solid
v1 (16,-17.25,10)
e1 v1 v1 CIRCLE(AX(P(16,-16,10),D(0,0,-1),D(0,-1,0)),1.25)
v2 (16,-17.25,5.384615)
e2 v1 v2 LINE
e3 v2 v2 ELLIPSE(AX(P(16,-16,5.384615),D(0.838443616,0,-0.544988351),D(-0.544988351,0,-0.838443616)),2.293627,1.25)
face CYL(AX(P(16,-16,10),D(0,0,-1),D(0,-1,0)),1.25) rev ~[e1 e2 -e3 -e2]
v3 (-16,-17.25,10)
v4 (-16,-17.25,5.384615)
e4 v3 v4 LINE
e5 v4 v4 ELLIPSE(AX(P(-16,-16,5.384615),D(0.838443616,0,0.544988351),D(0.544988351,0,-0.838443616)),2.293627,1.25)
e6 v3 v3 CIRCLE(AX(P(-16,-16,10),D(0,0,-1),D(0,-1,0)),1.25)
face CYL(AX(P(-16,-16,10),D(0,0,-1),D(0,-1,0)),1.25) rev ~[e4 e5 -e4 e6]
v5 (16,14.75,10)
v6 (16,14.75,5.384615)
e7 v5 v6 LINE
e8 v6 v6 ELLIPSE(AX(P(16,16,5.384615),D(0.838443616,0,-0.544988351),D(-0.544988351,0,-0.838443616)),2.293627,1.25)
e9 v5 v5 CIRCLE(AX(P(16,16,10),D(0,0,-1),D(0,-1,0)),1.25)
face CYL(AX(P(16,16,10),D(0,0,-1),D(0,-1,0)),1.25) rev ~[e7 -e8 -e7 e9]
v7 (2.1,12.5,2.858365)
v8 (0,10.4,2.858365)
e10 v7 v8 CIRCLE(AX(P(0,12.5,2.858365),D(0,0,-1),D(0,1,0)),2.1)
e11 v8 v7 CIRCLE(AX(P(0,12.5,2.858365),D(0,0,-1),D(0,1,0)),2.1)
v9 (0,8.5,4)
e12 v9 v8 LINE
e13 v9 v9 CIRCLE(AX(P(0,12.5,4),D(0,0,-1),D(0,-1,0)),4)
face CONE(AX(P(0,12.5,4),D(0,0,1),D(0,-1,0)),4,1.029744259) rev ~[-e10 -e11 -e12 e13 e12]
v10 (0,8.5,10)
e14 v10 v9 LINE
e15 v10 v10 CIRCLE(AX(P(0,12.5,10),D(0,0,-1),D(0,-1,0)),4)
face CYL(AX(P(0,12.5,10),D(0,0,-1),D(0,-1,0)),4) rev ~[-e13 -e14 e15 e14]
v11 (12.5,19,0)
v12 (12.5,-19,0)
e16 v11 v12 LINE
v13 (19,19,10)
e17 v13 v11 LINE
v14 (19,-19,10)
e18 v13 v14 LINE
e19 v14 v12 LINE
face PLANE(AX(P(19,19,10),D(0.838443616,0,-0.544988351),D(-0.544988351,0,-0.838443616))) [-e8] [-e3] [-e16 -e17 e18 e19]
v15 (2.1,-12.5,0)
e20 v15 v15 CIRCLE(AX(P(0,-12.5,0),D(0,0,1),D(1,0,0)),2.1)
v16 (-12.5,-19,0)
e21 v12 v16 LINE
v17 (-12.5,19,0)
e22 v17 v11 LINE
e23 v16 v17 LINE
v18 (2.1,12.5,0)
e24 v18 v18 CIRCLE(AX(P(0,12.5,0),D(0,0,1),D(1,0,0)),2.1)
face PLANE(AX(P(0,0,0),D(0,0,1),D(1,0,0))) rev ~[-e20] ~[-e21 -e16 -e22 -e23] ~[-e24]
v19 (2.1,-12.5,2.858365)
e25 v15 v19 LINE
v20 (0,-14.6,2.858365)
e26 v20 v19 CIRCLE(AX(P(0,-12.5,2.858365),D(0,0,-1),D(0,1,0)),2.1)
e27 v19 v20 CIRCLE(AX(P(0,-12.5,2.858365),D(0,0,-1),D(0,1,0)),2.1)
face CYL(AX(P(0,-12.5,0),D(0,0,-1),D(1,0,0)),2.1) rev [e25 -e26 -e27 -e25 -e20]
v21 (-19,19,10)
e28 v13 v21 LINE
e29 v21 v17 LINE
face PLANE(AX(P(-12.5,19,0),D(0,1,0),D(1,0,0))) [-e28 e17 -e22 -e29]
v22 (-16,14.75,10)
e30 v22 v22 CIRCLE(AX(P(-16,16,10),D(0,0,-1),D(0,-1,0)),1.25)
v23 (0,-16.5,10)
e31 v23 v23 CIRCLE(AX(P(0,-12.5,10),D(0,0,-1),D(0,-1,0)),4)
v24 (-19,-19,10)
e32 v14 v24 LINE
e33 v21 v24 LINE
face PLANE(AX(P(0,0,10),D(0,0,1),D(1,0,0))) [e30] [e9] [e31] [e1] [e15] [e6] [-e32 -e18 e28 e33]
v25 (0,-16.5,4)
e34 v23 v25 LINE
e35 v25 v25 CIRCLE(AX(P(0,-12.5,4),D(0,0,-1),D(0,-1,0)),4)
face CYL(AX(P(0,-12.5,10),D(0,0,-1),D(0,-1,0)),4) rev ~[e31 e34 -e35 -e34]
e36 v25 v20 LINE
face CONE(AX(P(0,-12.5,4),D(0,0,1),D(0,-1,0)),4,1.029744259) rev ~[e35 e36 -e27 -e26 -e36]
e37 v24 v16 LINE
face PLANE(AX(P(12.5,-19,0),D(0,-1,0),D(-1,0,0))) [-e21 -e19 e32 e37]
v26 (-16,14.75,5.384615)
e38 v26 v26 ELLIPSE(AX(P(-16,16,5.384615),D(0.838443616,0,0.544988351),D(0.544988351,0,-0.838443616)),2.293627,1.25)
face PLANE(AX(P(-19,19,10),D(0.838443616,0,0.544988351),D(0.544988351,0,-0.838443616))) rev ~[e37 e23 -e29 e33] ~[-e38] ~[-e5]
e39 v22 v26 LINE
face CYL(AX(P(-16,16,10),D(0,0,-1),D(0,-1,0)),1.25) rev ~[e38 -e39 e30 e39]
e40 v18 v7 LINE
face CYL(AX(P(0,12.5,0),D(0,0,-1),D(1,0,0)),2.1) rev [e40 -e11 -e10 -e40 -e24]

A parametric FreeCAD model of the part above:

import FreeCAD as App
import Part
import Sketcher

doc = App.newDocument("Part")
params = doc.addObject("Spreadsheet::Sheet", "Params")
for row, (alias, value) in enumerate([
    ("sketch1_diameter", "4.2 mm"),
    ("sketch1_width", "25 mm"),
    ("sketch1_height", "38 mm"),
    ("pad1_length", "10 mm"),
    ("sketch2_width", "6.5 mm"),
    ("sketch2_height", "10 mm"),
    ("pad2_length", "38 mm"),
    ("sketch3_diameter", "2.5 mm"),
    ("hole_diameter", "2.5 mm"),
    ("hole_depth", "20 mm"),
    ("sketch4_diameter", "8 mm"),
    ("hole2_diameter", "8 mm"),
    ("hole2_depth", "6 mm"),
    ("sketch5_diameter", "8 mm"),
    ("hole3_diameter", "8 mm"),
    ("hole3_depth", "6 mm"),
], start=1):
    params.set(f"A{row}", alias)
    params.set(f"B{row}", "=" + value)
    params.setAlias(f"B{row}", alias)

body = doc.addObject("PartDesign::Body", "Body")

# Sketch on XY plane
sketch1 = body.newObject("Sketcher::SketchObject", "Sketch")
sketch1.AttachmentSupport = (doc.getObject("XY_Plane"), [""])
sketch1.MapMode = "FlatFace"
sketch1.addGeometry([
    Part.LineSegment(App.Vector(-12.5, -19, 0), App.Vector(12.5, -19, 0)),  # 0
    Part.LineSegment(App.Vector(12.5, -19, 0), App.Vector(12.5, 19, 0)),  # 1
    Part.LineSegment(App.Vector(12.5, 19, 0), App.Vector(-12.5, 19, 0)),  # 2
    Part.LineSegment(App.Vector(-12.5, 19, 0), App.Vector(-12.5, -19, 0)),  # 3
    Part.Circle(App.Vector(0, -12.5, 0), App.Vector(0, 0, 1), 2.1),  # 4
    Part.Circle(App.Vector(0, 12.5, 0), App.Vector(0, 0, 1), 2.1),  # 5
], False)
sketch1.addConstraint([
    Sketcher.Constraint("Coincident", 0, 2, 1, 1),
    Sketcher.Constraint("Coincident", 1, 2, 2, 1),
    Sketcher.Constraint("Coincident", 2, 2, 3, 1),
    Sketcher.Constraint("Coincident", 3, 2, 0, 1),
    Sketcher.Constraint("Horizontal", 0),
    Sketcher.Constraint("Vertical", 1),
    Sketcher.Constraint("Horizontal", 2),
    Sketcher.Constraint("Vertical", 3),
    Sketcher.Constraint("Equal", 4, 5),
    Sketcher.Constraint("Symmetric", 4, 3, 5, 3, -1, 1),
    Sketcher.Constraint("Symmetric", 0, 2, 2, 2, -1, 1),
    Sketcher.Constraint("PointOnObject", 4, 3, -2),
    Sketcher.Constraint("Diameter", 4, 4.2),
    Sketcher.Constraint("DistanceX", 0, 1, 0, 2, 25.0),
    Sketcher.Constraint("DistanceY", 1, 1, 1, 2, 38.0),
    Sketcher.Constraint("DistanceY", 4, 3, 5, 3, 25.0),
])
sketch1.setExpression("Constraints[12]", "Params.sketch1_diameter")
sketch1.setExpression("Constraints[13]", "Params.sketch1_width")
sketch1.setExpression("Constraints[14]", "Params.sketch1_height")
pad1 = body.newObject("PartDesign::Pad", "Pad")
pad1.Profile = sketch1
pad1.setExpression("Length", "Params.pad1_length")

# Sketch on XZ plane
sketch2 = body.newObject("Sketcher::SketchObject", "Sketch001")
sketch2.AttachmentSupport = (doc.getObject("XZ_Plane"), [""])
sketch2.MapMode = "FlatFace"
sketch2.AttachmentOffset = App.Placement(App.Vector(0, 0, -19), App.Rotation())
sketch2.addGeometry([
    Part.LineSegment(App.Vector(12, 0, 0), App.Vector(12, 10, 0)),  # 0
    Part.LineSegment(App.Vector(12, 10, 0), App.Vector(19, 10, 0)),  # 1
    Part.LineSegment(App.Vector(19, 10, 0), App.Vector(12, 0, 0)),  # 2
    Part.LineSegment(App.Vector(-12, 10, 0), App.Vector(-12, 0, 0)),  # 3
    Part.LineSegment(App.Vector(-12, 0, 0), App.Vector(-19, 10, 0)),  # 4
    Part.LineSegment(App.Vector(-19, 10, 0), App.Vector(-12, 10, 0)),  # 5
], False)
sketch2.addConstraint([
    Sketcher.Constraint("Coincident", 0, 2, 1, 1),
    Sketcher.Constraint("Coincident", 1, 2, 2, 1),
    Sketcher.Constraint("Coincident", 2, 2, 0, 1),
    Sketcher.Constraint("Coincident", 3, 2, 4, 1),
    Sketcher.Constraint("Coincident", 4, 2, 5, 1),
    Sketcher.Constraint("Coincident", 5, 2, 3, 1),
    Sketcher.Constraint("Vertical", 0),
    Sketcher.Constraint("Horizontal", 1),
    Sketcher.Constraint("Vertical", 3),
    Sketcher.Constraint("Horizontal", 5),
    Sketcher.Constraint("Symmetric", 2, 2, 3, 2, -1, 1),
    Sketcher.Constraint("Symmetric", 1, 2, 4, 2, -2),
    Sketcher.Constraint("PointOnObject", 2, 2, -1),
    Sketcher.Constraint("DistanceX", 1, 1, 1, 2, 6.5),
    Sketcher.Constraint("DistanceY", 0, 1, 0, 2, 10.0),
    Sketcher.Constraint("DistanceX", -1, 1, 1, 2, 19.0),
])
sketch2.setExpression("Constraints[13]", "Params.sketch2_width")
sketch2.setExpression("Constraints[14]", "Params.sketch2_height")
pad2 = body.newObject("PartDesign::Pad", "Pad001")
pad2.Profile = sketch2
pad2.setExpression("Length", "Params.pad2_length")

# Sketch on XY plane
sketch3 = body.newObject("Sketcher::SketchObject", "Sketch002")
sketch3.AttachmentSupport = (doc.getObject("XY_Plane"), [""])
sketch3.MapMode = "FlatFace"
sketch3.AttachmentOffset = App.Placement(App.Vector(0, 0, 10), App.Rotation())
sketch3.addGeometry([
    Part.Circle(App.Vector(-16, 16, 0), App.Vector(0, 0, 1), 1.2),
    Part.Circle(App.Vector(16, 16, 0), App.Vector(0, 0, 1), 1.2),
    Part.Circle(App.Vector(-16, -16, 0), App.Vector(0, 0, 1), 1.2),
    Part.Circle(App.Vector(16, -16, 0), App.Vector(0, 0, 1), 1.2),
], False)
sketch3.addConstraint([
    Sketcher.Constraint("Equal", 0, 1),
    Sketcher.Constraint("Equal", 1, 2),
    Sketcher.Constraint("Equal", 2, 3),
    Sketcher.Constraint("Symmetric", 1, 3, 2, 3, -1, 1),
    Sketcher.Constraint("Symmetric", 0, 3, 3, 3, -1, 1),
    Sketcher.Constraint("Symmetric", 0, 3, 1, 3, -2),
    Sketcher.Constraint("Diameter", 0, 2.5),
    Sketcher.Constraint("DistanceX", 0, 3, -1, 1, 16.0),
    Sketcher.Constraint("DistanceY", -1, 1, 0, 3, 16.0),
])
sketch3.setExpression("Constraints[6]", "Params.sketch3_diameter")
doc.recompute()
hole = body.newObject("PartDesign::Hole", "Hole")
hole.Profile = sketch3
hole.ThreadType = "None"
hole.setExpression("Diameter", "Params.hole_diameter")
hole.DepthType = "Dimension"
hole.setExpression("Depth", "Params.hole_depth")
hole.DrillPoint = "Angled"
hole.DrillPointAngle = 118

# Sketch on XY plane
sketch4 = body.newObject("Sketcher::SketchObject", "Sketch003")
sketch4.AttachmentSupport = (doc.getObject("XY_Plane"), [""])
sketch4.MapMode = "FlatFace"
sketch4.AttachmentOffset = App.Placement(App.Vector(0, 0, 10), App.Rotation())
sketch4.addGeometry(Part.Circle(App.Vector(0, -12.5, 0), App.Vector(0, 0, 1), 4), False)
sketch4.addConstraint([
    Sketcher.Constraint("PointOnObject", 0, 3, -2),
    Sketcher.Constraint("Diameter", 0, 8.0),
    Sketcher.Constraint("DistanceY", 0, 3, -1, 1, 12.5),
])
sketch4.setExpression("Constraints[1]", "Params.sketch4_diameter")
doc.recompute()
hole2 = body.newObject("PartDesign::Hole", "Hole001")
hole2.Profile = sketch4
hole2.ThreadType = "None"
hole2.setExpression("Diameter", "Params.hole2_diameter")
hole2.DepthType = "Dimension"
hole2.setExpression("Depth", "Params.hole2_depth")
hole2.DrillPoint = "Angled"
hole2.DrillPointAngle = 118

# Sketch on XY plane
sketch5 = body.newObject("Sketcher::SketchObject", "Sketch004")
sketch5.AttachmentSupport = (doc.getObject("XY_Plane"), [""])
sketch5.MapMode = "FlatFace"
sketch5.AttachmentOffset = App.Placement(App.Vector(0, 0, 10), App.Rotation())
sketch5.addGeometry(Part.Circle(App.Vector(0, 12.5, 0), App.Vector(0, 0, 1), 4), False)
sketch5.addConstraint([
    Sketcher.Constraint("PointOnObject", 0, 3, -2),
    Sketcher.Constraint("Diameter", 0, 8.0),
    Sketcher.Constraint("DistanceY", -1, 1, 0, 3, 12.5),
])
sketch5.setExpression("Constraints[1]", "Params.sketch5_diameter")
doc.recompute()
hole3 = body.newObject("PartDesign::Hole", "Hole002")
hole3.Profile = sketch5
hole3.ThreadType = "None"
hole3.setExpression("Diameter", "Params.hole3_diameter")
hole3.DepthType = "Dimension"
hole3.setExpression("Depth", "Params.hole3_depth")
hole3.DrillPoint = "Angled"
hole3.DrillPointAngle = 118

doc.recompute()
